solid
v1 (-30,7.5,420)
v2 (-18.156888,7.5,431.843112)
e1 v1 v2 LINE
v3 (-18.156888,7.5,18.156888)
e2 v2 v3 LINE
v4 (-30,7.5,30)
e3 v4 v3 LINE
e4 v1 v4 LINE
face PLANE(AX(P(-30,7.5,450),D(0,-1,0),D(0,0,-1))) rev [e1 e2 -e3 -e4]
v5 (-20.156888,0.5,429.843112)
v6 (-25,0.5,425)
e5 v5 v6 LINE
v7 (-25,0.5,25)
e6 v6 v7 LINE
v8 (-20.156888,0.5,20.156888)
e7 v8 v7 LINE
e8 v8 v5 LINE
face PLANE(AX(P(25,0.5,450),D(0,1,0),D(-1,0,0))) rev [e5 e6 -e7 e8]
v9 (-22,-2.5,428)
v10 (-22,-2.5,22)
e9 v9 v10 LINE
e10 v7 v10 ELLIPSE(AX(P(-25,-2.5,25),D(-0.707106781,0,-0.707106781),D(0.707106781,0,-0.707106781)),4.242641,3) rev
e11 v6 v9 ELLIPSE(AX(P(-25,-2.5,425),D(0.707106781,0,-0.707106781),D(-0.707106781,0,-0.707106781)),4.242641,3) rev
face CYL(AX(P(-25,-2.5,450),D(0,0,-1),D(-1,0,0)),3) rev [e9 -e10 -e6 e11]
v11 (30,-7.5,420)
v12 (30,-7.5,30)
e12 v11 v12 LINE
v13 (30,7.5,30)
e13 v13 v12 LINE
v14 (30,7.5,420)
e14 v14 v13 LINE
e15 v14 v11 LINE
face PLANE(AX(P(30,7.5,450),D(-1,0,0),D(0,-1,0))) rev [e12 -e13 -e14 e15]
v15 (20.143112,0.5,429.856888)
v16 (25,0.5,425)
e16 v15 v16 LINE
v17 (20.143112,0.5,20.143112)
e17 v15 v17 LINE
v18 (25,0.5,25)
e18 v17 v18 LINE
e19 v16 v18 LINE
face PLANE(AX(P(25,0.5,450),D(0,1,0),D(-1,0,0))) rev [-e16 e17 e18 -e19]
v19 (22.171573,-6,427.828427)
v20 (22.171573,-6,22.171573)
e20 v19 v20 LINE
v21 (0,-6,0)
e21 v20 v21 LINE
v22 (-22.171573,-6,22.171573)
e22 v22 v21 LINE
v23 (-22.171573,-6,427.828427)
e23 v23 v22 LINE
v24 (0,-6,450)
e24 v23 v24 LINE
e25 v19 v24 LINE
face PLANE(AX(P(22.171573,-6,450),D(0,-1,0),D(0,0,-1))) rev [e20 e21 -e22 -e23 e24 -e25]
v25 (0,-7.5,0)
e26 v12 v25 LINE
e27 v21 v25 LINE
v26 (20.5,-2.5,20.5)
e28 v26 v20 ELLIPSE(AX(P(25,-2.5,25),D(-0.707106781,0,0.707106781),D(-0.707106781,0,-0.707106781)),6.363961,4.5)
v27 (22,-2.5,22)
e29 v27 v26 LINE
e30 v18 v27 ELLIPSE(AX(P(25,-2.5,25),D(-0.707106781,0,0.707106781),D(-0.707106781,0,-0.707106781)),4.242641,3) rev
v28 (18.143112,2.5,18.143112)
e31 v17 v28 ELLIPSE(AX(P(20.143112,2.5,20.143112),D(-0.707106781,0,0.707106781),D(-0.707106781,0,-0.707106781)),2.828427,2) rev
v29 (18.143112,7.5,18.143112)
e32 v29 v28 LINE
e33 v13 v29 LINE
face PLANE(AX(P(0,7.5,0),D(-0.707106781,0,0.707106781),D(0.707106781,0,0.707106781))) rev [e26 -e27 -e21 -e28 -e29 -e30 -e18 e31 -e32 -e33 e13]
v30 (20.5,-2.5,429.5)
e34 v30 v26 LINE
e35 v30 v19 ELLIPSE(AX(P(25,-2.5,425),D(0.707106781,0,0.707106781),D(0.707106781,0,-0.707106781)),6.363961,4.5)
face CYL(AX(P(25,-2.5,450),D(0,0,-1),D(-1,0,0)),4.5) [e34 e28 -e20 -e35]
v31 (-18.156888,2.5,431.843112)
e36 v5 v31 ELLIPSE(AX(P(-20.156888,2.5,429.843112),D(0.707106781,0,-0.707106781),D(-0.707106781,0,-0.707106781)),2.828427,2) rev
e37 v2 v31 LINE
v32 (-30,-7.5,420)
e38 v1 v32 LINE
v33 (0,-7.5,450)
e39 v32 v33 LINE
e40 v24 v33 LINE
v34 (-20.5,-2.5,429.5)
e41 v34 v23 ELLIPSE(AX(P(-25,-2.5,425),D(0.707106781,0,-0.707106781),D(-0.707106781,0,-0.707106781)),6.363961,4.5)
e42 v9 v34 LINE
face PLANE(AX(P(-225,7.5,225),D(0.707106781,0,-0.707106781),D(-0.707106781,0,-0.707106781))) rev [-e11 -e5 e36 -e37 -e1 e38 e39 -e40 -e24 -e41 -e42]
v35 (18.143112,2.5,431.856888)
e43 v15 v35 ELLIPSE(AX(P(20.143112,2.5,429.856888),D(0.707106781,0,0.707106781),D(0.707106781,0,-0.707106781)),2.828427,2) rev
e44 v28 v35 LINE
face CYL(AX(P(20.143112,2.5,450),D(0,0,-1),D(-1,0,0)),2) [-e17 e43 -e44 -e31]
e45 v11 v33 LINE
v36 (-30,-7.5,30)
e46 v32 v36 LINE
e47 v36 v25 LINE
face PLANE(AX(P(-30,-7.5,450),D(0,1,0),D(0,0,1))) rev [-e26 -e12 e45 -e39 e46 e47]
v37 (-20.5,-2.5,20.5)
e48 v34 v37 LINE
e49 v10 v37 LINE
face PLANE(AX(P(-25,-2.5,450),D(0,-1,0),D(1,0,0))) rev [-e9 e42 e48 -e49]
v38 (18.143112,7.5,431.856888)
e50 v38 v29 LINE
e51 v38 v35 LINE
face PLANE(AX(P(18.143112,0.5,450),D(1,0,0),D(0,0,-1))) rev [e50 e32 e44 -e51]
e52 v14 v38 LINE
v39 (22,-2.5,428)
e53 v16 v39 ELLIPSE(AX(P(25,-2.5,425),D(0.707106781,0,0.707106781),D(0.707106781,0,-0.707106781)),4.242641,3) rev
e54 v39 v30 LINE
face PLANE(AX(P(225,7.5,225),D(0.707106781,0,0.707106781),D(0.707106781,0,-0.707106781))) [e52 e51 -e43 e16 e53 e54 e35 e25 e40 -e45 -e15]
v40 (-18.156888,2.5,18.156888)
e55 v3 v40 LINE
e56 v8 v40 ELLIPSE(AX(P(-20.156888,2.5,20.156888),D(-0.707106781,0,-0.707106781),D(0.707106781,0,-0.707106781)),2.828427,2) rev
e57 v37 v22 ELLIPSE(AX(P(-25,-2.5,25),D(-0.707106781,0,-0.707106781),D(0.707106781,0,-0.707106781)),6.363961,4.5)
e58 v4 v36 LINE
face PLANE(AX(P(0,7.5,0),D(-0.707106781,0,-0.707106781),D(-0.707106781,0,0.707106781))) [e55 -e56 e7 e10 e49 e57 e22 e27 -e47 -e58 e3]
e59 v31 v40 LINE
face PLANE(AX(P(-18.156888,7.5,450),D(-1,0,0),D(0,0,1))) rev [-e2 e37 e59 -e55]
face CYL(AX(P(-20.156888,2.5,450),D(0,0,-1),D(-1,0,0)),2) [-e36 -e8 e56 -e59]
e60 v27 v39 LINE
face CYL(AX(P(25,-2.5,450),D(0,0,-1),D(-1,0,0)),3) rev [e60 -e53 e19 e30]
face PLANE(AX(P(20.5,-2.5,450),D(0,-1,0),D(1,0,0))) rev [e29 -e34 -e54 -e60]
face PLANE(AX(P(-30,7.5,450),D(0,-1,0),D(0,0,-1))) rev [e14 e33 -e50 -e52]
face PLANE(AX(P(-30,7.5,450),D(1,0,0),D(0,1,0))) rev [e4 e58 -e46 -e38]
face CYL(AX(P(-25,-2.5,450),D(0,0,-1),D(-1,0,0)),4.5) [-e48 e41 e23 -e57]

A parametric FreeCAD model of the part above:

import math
import FreeCAD as App
import Part
import Sketcher

V = App.Vector
Q = App.Units.Quantity


def edges_at(feature, points):
    """Names of the edges that pass closest to the given points."""
    edges = feature.Shape.Edges
    near = lambda p: min(range(len(edges)), key=lambda i: edges[i].distToShape(Part.Vertex(*p))[0])
    return sorted({f"Edge{near(p) + 1}" for p in points})

doc = App.newDocument("Part")
params = doc.addObject("Spreadsheet::Sheet", "Params")
for row, (alias, value) in enumerate([
    ("sketch1_width", "60 mm"),
    ("sketch1_height", "15 mm"),
    ("pad1_length", "450 mm"),
    ("sketch2_diameter", "6 mm"),
    ("sketch3_radius", "4.5 mm"),
    ("sketch3_width", "50 mm"),
    ("sketch3_height", "3 mm"),
    ("sketch4_height", "7 mm"),
    ("sketch4_width", "36.3 mm"),
    ("fillet_radius", "2 mm"),
    ("sketch5_width", "30 mm"),
], start=1):
    params.set(f"A{row}", alias)
    params.set(f"B{row}", "=" + value)
    params.setAlias(f"B{row}", alias)

body = doc.addObject("PartDesign::Body", "Body")

sketch1 = body.newObject("Sketcher::SketchObject", "Sketch")
sketch1.AttachmentSupport = (doc.getObject("XY_Plane"), [""])
sketch1.MapMode = "FlatFace"
sketch1.addGeometry([
    Part.LineSegment(V(-30, 8, 0), V(-30, -8, 0)),
    Part.LineSegment(V(-30, -8, 0), V(30, -8, 0)),
    Part.LineSegment(V(30, -8, 0), V(30, 8, 0)),
    Part.LineSegment(V(30, 8, 0), V(-30, 8, 0)),
], False)
sketch1.addConstraint([
    Sketcher.Constraint("Coincident", 0, 2, 1, 1),
    Sketcher.Constraint("Coincident", 1, 2, 2, 1),
    Sketcher.Constraint("Coincident", 2, 2, 3, 1),
    Sketcher.Constraint("Coincident", 3, 2, 0, 1),
    Sketcher.Constraint("Vertical", 0),
    Sketcher.Constraint("Horizontal", 1),
    Sketcher.Constraint("Vertical", 2),
    Sketcher.Constraint("Horizontal", 3),
    Sketcher.Constraint("Symmetric", 0, 2, 2, 2, -1, 1),
    Sketcher.Constraint("DistanceX", 1, 1, 1, 2, Q("60 mm")),
    Sketcher.Constraint("DistanceY", 0, 2, 0, 1, Q("15 mm")),
])
sketch1.setExpression("Constraints[9]", "Params.sketch1_width")
sketch1.setExpression("Constraints[10]", "Params.sketch1_height")
pad1 = body.newObject("PartDesign::Pad", "Pad")
pad1.Profile = sketch1
pad1.setExpression("Length", "Params.pad1_length")

sketch2 = body.newObject("Sketcher::SketchObject", "Sketch001")
sketch2.AttachmentSupport = (doc.getObject("XY_Plane"), [""])
sketch2.MapMode = "FlatFace"
sketch2.addGeometry([
    Part.Circle(V(25, -2.5, 0), V(0, 0, 1), 3),
    Part.Circle(V(-25, -2.5, 0), V(0, 0, 1), 3),
], False)
sketch2.addConstraint([
    Sketcher.Constraint("Equal", 0, 1),
    Sketcher.Constraint("Symmetric", 0, 3, 1, 3, -2),
    Sketcher.Constraint("Diameter", 0, Q("6 mm")),
    Sketcher.Constraint("DistanceX", -1, 1, 0, 3, Q("25 mm")),
    Sketcher.Constraint("DistanceY", 0, 3, -1, 1, Q("2.5 mm")),
])
sketch2.setExpression("Constraints[2]", "Params.sketch2_diameter")
pocket1 = body.newObject("PartDesign::Pocket", "Pocket")
pocket1.Profile = sketch2
pocket1.Type = "ThroughAll"
pocket1.Reversed = True

sketch3 = body.newObject("Sketcher::SketchObject", "Sketch002")
sketch3.AttachmentSupport = (doc.getObject("XY_Plane"), [""])
sketch3.MapMode = "FlatFace"
sketch3.addGeometry([
    Part.LineSegment(V(22.2, -6, 0), V(-22.2, -6, 0)),
    Part.ArcOfCircle(Part.Circle(V(-25, -2.5, 0), V(0, 0, 1), 4.5), math.radians(-51), math.radians(0)),
    Part.LineSegment(V(-20.5, -2.5, 0), V(-25, -2.5, 0)),
    Part.LineSegment(V(-25, -2.5, 0), V(-25, 0.5, 0)),
    Part.LineSegment(V(-25, 0.5, 0), V(25, 0.5, 0)),
    Part.LineSegment(V(25, 0.5, 0), V(25, -2.5, 0)),
    Part.LineSegment(V(25, -2.5, 0), V(20.5, -2.5, 0)),
    Part.ArcOfCircle(Part.Circle(V(25, -2.5, 0), V(0, 0, 1), 4.5), math.radians(180), math.radians(231)),
], False)
sketch3.addConstraint([
    Sketcher.Constraint("Coincident", 0, 2, 1, 1),
    Sketcher.Constraint("Coincident", 1, 2, 2, 1),
    Sketcher.Constraint("Coincident", 2, 2, 3, 1),
    Sketcher.Constraint("Coincident", 3, 2, 4, 1),
    Sketcher.Constraint("Coincident", 4, 2, 5, 1),
    Sketcher.Constraint("Coincident", 5, 2, 6, 1),
    Sketcher.Constraint("Coincident", 6, 2, 7, 1),
    Sketcher.Constraint("Coincident", 7, 2, 0, 1),
    Sketcher.Constraint("Horizontal", 0),
    Sketcher.Constraint("Horizontal", 2),
    Sketcher.Constraint("Vertical", 3),
    Sketcher.Constraint("Horizontal", 4),
    Sketcher.Constraint("Vertical", 5),
    Sketcher.Constraint("Horizontal", 6),
    Sketcher.Constraint("Coincident", 2, 2, 1, 3),
    Sketcher.Constraint("Coincident", 5, 2, 7, 3),
    Sketcher.Constraint("Equal", 1, 7),
    Sketcher.Constraint("Symmetric", 1, 3, 7, 3, -2),
    Sketcher.Constraint("Radius", 1, Q("4.5 mm")),
    Sketcher.Constraint("DistanceX", 4, 1, 4, 2, Q("50 mm")),
    Sketcher.Constraint("DistanceY", 3, 1, 3, 2, Q("3 mm")),
    Sketcher.Constraint("DistanceY", 0, 2, -1, 1, Q("6 mm")),
    Sketcher.Constraint("DistanceY", 1, 3, -1, 1, Q("2.5 mm")),
])
sketch3.setExpression("Constraints[18]", "Params.sketch3_radius")
sketch3.setExpression("Constraints[19]", "Params.sketch3_width")
sketch3.setExpression("Constraints[20]", "Params.sketch3_height")
pocket2 = body.newObject("PartDesign::Pocket", "Pocket001")
pocket2.Profile = sketch3
pocket2.Type = "ThroughAll"
pocket2.Reversed = True

sketch4 = body.newObject("Sketcher::SketchObject", "Sketch003")
sketch4.AttachmentSupport = (doc.getObject("XY_Plane"), [""])
sketch4.MapMode = "FlatFace"
sketch4.addGeometry([
    Part.LineSegment(V(18, 8, 0), V(18, 0, 0)),
    Part.LineSegment(V(18, 0, 0), V(-18, 0, 0)),
    Part.LineSegment(V(-18, 0, 0), V(-18, 8, 0)),
    Part.LineSegment(V(-18, 8, 0), V(18, 8, 0)),
], False)
sketch4.addConstraint([
    Sketcher.Constraint("Coincident", 0, 2, 1, 1),
    Sketcher.Constraint("Coincident", 1, 2, 2, 1),
    Sketcher.Constraint("Coincident", 2, 2, 3, 1),
    Sketcher.Constraint("Coincident", 3, 2, 0, 1),
    Sketcher.Constraint("Vertical", 0),
    Sketcher.Constraint("Horizontal", 1),
    Sketcher.Constraint("Vertical", 2),
    Sketcher.Constraint("Horizontal", 3),
    Sketcher.Constraint("DistanceY", 0, 2, 0, 1, Q("7 mm")),
    Sketcher.Constraint("DistanceX", 1, 2, 1, 1, Q("36.3 mm")),
    Sketcher.Constraint("DistanceY", -1, 1, 0, 2, Q("0.5 mm")),
    Sketcher.Constraint("DistanceX", -1, 1, 0, 2, Q("18.143112 mm")),
])
sketch4.setExpression("Constraints[8]", "Params.sketch4_height")
sketch4.setExpression("Constraints[9]", "Params.sketch4_width")
pocket3 = body.newObject("PartDesign::Pocket", "Pocket002")
pocket3.Profile = sketch4
pocket3.Type = "ThroughAll"
pocket3.Reversed = True
doc.recompute()

fillet = body.newObject("PartDesign::Fillet", "Fillet")
fillet.Base = (pocket3, edges_at(pocket3, [(-18.157, 0.5, 225), (18.143, 0.5, 225)]))
fillet.setExpression("Radius", "Params.fillet_radius")

sketch5 = body.newObject("Sketcher::SketchObject", "Sketch004")
sketch5.AttachmentSupport = (doc.getObject("XZ_Plane"), [""])
sketch5.MapMode = "FlatFace"
sketch5.AttachmentOffset = App.Placement(V(0, 0, 7.5), App.Rotation())
sketch5.addGeometry([
    Part.LineSegment(V(30, 450, 0), V(0, 450, 0)),
    Part.LineSegment(V(0, 450, 0), V(30, 420, 0)),
    Part.LineSegment(V(30, 420, 0), V(30, 450, 0)),
    Part.LineSegment(V(0, 450, 0), V(-30, 450, 0)),
    Part.LineSegment(V(-30, 450, 0), V(-30, 420, 0)),
    Part.LineSegment(V(-30, 420, 0), V(0, 450, 0)),
    Part.LineSegment(V(0, 0, 0), V(-30, 30, 0)),
    Part.LineSegment(V(-30, 30, 0), V(-30, 0, 0)),
    Part.LineSegment(V(-30, 0, 0), V(0, 0, 0)),
    Part.LineSegment(V(30, 30, 0), V(0, 0, 0)),
    Part.LineSegment(V(0, 0, 0), V(30, 0, 0)),
    Part.LineSegment(V(30, 0, 0), V(30, 30, 0)),
], False)
sketch5.addConstraint([
    Sketcher.Constraint("Coincident", 0, 2, 1, 1),
    Sketcher.Constraint("Coincident", 1, 2, 2, 1),
    Sketcher.Constraint("Coincident", 2, 2, 0, 1),
    Sketcher.Constraint("Coincident", 3, 2, 4, 1),
    Sketcher.Constraint("Coincident", 4, 2, 5, 1),
    Sketcher.Constraint("Coincident", 5, 2, 3, 1),
    Sketcher.Constraint("Coincident", 6, 2, 7, 1),
    Sketcher.Constraint("Coincident", 7, 2, 8, 1),
    Sketcher.Constraint("Coincident", 8, 2, 6, 1),
    Sketcher.Constraint("Coincident", 9, 2, 10, 1),
    Sketcher.Constraint("Coincident", 10, 2, 11, 1),
    Sketcher.Constraint("Coincident", 11, 2, 9, 1),
    Sketcher.Constraint("Horizontal", 0),
    Sketcher.Constraint("Vertical", 2),
    Sketcher.Constraint("Horizontal", 3),
    Sketcher.Constraint("Vertical", 4),
    Sketcher.Constraint("Vertical", 7),
    Sketcher.Constraint("Horizontal", 8),
    Sketcher.Constraint("Horizontal", 10),
    Sketcher.Constraint("Vertical", 11),
    Sketcher.Constraint("Coincident", 8, 2, -1, 1),
    Sketcher.Constraint("Coincident", 9, 2, -1, 1),
    Sketcher.Constraint("Coincident", 5, 2, 0, 2),
    Sketcher.Constraint("Symmetric", 1, 2, 4, 2, -2),
    Sketcher.Constraint("Symmetric", 6, 2, 11, 2, -2),
    Sketcher.Constraint("PointOnObject", 0, 2, -2),
    Sketcher.Constraint("Perpendicular", 1, 5),
    Sketcher.Constraint("Perpendicular", 5, 6),
    Sketcher.Constraint("Vertical", 4, 2, 6, 2),
    Sketcher.Constraint("DistanceX", 0, 2, 0, 1, Q("30 mm")),
    Sketcher.Constraint("DistanceY", -1, 1, 0, 2, Q("450 mm")),
])
sketch5.setExpression("Constraints[29]", "Params.sketch5_width")
pocket4 = body.newObject("PartDesign::Pocket", "Pocket003")
pocket4.Profile = sketch5
pocket4.Type = "ThroughAll"

doc.recompute()
